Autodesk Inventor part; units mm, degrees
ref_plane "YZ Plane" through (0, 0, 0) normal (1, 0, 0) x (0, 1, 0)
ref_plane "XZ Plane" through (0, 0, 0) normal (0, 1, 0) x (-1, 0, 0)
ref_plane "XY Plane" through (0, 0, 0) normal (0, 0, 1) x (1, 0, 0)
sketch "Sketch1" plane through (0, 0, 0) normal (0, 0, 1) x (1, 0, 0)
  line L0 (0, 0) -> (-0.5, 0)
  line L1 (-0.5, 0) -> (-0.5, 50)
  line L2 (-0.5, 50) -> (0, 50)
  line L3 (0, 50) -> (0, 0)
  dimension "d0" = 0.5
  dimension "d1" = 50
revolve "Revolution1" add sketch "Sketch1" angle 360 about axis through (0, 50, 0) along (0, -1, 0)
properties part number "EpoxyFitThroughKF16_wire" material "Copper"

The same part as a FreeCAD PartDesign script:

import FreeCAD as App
import Part
import Sketcher

V = App.Vector


def add_polygon(sketch, points):
    """Adds a closed chain of lines whose ends are joined by coincident constraints."""
    first, n = sketch.GeometryCount, len(points)
    for a, b in zip(points, points[1:] + points[:1]):
        sketch.addGeometry(Part.LineSegment(App.Vector(*a, 0), App.Vector(*b, 0)), False)
    for i in range(n):
        sketch.addConstraint(Sketcher.Constraint("Coincident", first + i, 2, first + (i + 1) % n, 1))

doc = App.newDocument("Part")
params = doc.addObject("Spreadsheet::Sheet", "Params")
for row, (alias, value) in enumerate([
    ("sketch1_height", "50 mm"),
    ("sketch1_width", "0.5 mm"),
    ("revolution_angle", "360 deg"),
], start=1):
    params.set(f"A{row}", alias)
    params.set(f"B{row}", "=" + value)
    params.setAlias(f"B{row}", alias)

body = doc.addObject("PartDesign::Body", "Body")

sketch1 = body.newObject("Sketcher::SketchObject", "Sketch")
sketch1.AttachmentSupport = (doc.getObject("XY_Plane"), [""])
sketch1.MapMode = "FlatFace"
add_polygon(sketch1, [(-0.5, 0), (0, 0), (0, 50), (-0.5, 50)])
sketch1.addConstraint([
    Sketcher.Constraint("Horizontal", 0),
    Sketcher.Constraint("Vertical", 1),
    Sketcher.Constraint("Horizontal", 2),
    Sketcher.Constraint("Vertical", 3),
    Sketcher.Constraint("Coincident", 0, 2, -1, 1),
    Sketcher.Constraint("DistanceY", 1, 1, 1, 2, 50.0),
    Sketcher.Constraint("DistanceX", 0, 1, 0, 2, 0.5),
])
sketch1.setExpression("Constraints[9]", "Params.sketch1_height")
sketch1.setExpression("Constraints[10]", "Params.sketch1_width")
revolution = body.newObject("PartDesign::Revolution", "Revolution")
revolution.Profile = sketch1
revolution.ReferenceAxis = (sketch1, ["V_Axis"])
revolution.setExpression("Angle", "Params.revolution_angle")

doc.recompute()
